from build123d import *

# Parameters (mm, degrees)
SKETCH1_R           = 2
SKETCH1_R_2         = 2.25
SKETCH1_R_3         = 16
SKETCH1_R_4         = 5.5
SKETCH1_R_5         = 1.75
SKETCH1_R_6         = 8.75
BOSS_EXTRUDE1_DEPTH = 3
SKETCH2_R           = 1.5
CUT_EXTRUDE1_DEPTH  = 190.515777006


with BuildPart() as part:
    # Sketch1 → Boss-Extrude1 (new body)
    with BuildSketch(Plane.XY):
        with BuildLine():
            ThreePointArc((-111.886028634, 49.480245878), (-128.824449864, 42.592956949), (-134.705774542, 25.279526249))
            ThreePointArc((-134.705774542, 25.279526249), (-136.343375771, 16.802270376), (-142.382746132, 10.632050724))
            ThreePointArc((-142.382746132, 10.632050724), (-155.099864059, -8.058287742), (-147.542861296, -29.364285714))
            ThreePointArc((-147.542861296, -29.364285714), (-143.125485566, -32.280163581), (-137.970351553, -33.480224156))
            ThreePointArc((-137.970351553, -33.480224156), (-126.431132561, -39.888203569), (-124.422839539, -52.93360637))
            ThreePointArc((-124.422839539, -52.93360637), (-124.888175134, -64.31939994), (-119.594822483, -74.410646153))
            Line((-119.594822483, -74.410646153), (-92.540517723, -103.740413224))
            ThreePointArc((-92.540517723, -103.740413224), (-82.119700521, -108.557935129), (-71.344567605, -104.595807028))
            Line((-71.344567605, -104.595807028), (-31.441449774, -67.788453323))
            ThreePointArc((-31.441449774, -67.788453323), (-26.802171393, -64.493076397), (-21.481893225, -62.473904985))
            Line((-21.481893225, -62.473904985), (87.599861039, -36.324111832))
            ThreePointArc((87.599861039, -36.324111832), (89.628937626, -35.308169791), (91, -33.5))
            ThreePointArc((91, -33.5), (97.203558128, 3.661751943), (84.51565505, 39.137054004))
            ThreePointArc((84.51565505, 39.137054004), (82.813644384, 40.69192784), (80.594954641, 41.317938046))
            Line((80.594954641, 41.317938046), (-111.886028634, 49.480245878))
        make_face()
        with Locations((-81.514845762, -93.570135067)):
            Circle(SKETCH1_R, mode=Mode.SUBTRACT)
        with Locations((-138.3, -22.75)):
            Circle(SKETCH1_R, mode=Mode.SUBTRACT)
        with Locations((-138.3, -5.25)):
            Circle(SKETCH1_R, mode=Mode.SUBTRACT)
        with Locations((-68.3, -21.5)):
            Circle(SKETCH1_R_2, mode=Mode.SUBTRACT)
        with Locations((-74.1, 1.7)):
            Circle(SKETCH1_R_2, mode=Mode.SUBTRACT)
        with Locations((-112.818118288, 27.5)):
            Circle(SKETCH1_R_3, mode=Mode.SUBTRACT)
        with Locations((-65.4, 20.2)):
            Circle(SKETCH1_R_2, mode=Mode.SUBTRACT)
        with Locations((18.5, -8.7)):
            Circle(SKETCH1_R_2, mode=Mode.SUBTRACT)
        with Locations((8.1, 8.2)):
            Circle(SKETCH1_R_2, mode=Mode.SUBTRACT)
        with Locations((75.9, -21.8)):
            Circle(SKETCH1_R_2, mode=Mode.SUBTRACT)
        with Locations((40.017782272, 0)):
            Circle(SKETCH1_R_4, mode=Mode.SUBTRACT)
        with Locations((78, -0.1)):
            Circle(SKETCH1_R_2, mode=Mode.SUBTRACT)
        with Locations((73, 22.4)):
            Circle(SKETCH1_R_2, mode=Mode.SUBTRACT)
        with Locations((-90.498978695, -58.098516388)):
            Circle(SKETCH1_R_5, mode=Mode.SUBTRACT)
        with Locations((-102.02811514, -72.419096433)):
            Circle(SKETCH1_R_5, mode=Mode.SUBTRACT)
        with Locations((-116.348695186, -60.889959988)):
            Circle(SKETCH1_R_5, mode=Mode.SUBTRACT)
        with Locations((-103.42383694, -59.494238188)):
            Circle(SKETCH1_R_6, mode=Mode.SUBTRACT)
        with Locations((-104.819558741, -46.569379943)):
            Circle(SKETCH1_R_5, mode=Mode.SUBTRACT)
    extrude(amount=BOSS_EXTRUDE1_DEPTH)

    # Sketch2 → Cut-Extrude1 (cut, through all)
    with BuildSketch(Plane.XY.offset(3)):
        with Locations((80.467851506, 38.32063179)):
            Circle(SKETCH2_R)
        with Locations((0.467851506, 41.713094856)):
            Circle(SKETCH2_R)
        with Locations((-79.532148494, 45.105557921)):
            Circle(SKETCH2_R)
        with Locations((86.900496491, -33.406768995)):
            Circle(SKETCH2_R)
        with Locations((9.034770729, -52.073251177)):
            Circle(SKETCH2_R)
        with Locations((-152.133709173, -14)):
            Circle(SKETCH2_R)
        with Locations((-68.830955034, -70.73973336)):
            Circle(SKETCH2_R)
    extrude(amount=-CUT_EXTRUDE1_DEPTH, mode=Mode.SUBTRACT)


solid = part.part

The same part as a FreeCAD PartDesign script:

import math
import FreeCAD as App
import Part
import Sketcher
Q = App.Units.Quantity

doc = App.newDocument("Part")
body = doc.addObject("PartDesign::Body", "Body")

# Sketch on XY plane
sketch1 = doc.addObject("Sketcher::SketchObject", "Sketch")
body.addObject(sketch1)
sketch1.AttachmentSupport = (doc.XY_Plane, [""])
sketch1.MapMode = "FlatFace"
sketch1.addGeometry([
    Part.ArcOfCircle(Part.Circle(App.Vector(-112.8, 27.5, 0), App.Vector(0, 0, 1), 22), math.radians(88), math.radians(186)),  # 0
    Part.ArcOfCircle(Part.Circle(App.Vector(-149.6, 23.8, 0), App.Vector(0, 0, 1), 15), math.radians(-61), math.radians(6)),  # 1
    Part.ArcOfCircle(Part.Circle(App.Vector(-130.3, -11.3, 0), App.Vector(0, 0, 1), 25), math.radians(119), math.radians(226)),  # 2
    Part.ArcOfCircle(Part.Circle(App.Vector(-137.2, -18.5, 0), App.Vector(0, 0, 1), 15), math.radians(-134), math.radians(-93)),  # 3
    Part.ArcOfCircle(Part.Circle(App.Vector(-138.7, -48.5, 0), App.Vector(0, 0, 1), 15), math.radians(-17), math.radians(87)),  # 4
    Part.ArcOfCircle(Part.Circle(App.Vector(-103.4, -59.5, 0), App.Vector(0, 0, 1), 22), math.radians(163), math.radians(223)),  # 5
    Part.LineSegment(App.Vector(-119.6, -74.4, 0), App.Vector(-92.5, -103.7, 0)),  # 6
    Part.ArcOfCircle(Part.Circle(App.Vector(-81.5, -93.6, 0), App.Vector(0, 0, 1), 15), math.radians(-137), math.radians(-47)),  # 7
    Part.LineSegment(App.Vector(-71.3, -104.6, 0), App.Vector(-31.4, -67.8, 0)),  # 8
    Part.ArcOfCircle(Part.Circle(App.Vector(-16.3, -84.2, 0), App.Vector(0, 0, 1), 22.4), math.radians(103), math.radians(133)),  # 9
    Part.LineSegment(App.Vector(-21.5, -62.5, 0), App.Vector(87.6, -36.3, 0)),  # 10
    Part.ArcOfCircle(Part.Circle(App.Vector(86.4, -31.5, 0), App.Vector(0, 0, 1), 5), math.radians(-77), math.radians(-24)),  # 11
    Part.ArcOfCircle(Part.Circle(App.Vector(22.7, -3, 0), App.Vector(0, 0, 1), 74.8), math.radians(-24), math.radians(34)),  # 12
    Part.ArcOfCircle(Part.Circle(App.Vector(80.4, 36.3, 0), App.Vector(0, 0, 1), 5), math.radians(34), math.radians(88)),  # 13
    Part.LineSegment(App.Vector(80.6, 41.3, 0), App.Vector(-111.9, 49.5, 0)),  # 14
    Part.Circle(App.Vector(-116.3, -60.9, 0), App.Vector(0, 0, 1), 1.8),  # 15
    Part.Circle(App.Vector(-102, -72.4, 0), App.Vector(0, 0, 1), 1.8),  # 16
    Part.Circle(App.Vector(-81.5, -93.6, 0), App.Vector(0, 0, 1), 2),  # 17
    Part.Circle(App.Vector(-103.4, -59.5, 0), App.Vector(0, 0, 1), 8.8),  # 18
    Part.Circle(App.Vector(-90.5, -58.1, 0), App.Vector(0, 0, 1), 1.8),  # 19
    Part.Circle(App.Vector(-104.8, -46.6, 0), App.Vector(0, 0, 1), 1.8),  # 20
    Part.Circle(App.Vector(-138.3, -22.8, 0), App.Vector(0, 0, 1), 2),  # 21
    Part.Circle(App.Vector(-138.3, -5.2, 0), App.Vector(0, 0, 1), 2),  # 22
    Part.Circle(App.Vector(-68.3, -21.5, 0), App.Vector(0, 0, 1), 2.2),  # 23
    Part.Circle(App.Vector(-74.1, 1.7, 0), App.Vector(0, 0, 1), 2.2),  # 24
    Part.Circle(App.Vector(-112.8, 27.5, 0), App.Vector(0, 0, 1), 16),  # 25
    Part.Circle(App.Vector(-65.4, 20.2, 0), App.Vector(0, 0, 1), 2.2),  # 26
    Part.Circle(App.Vector(18.5, -8.7, 0), App.Vector(0, 0, 1), 2.2),  # 27
    Part.Circle(App.Vector(8.1, 8.2, 0), App.Vector(0, 0, 1), 2.2),  # 28
    Part.Circle(App.Vector(75.9, -21.8, 0), App.Vector(0, 0, 1), 2.2),  # 29
    Part.Circle(App.Vector(40, 0, 0), App.Vector(0, 0, 1), 5.5),  # 30
    Part.Circle(App.Vector(78, -0.1, 0), App.Vector(0, 0, 1), 2.2),  # 31
    Part.Circle(App.Vector(73, 22.4, 0), App.Vector(0, 0, 1), 2.2),  # 32
], False)
sketch1.addConstraint([
    Sketcher.Constraint("Tangent", 0, 2, 1, 2),
    Sketcher.Constraint("Tangent", 1, 1, 2, 1),
    Sketcher.Constraint("Tangent", 2, 2, 3, 1),
    Sketcher.Constraint("Tangent", 3, 2, 4, 2),
    Sketcher.Constraint("Tangent", 4, 1, 5, 1),
    Sketcher.Constraint("Tangent", 5, 2, 6, 1),
    Sketcher.Constraint("Tangent", 6, 2, 7, 1),
    Sketcher.Constraint("Tangent", 7, 2, 8, 1),
    Sketcher.Constraint("Tangent", 8, 2, 9, 2),
    Sketcher.Constraint("Tangent", 9, 1, 10, 1),
    Sketcher.Constraint("Tangent", 10, 2, 11, 1),
    Sketcher.Constraint("Tangent", 11, 2, 12, 1),
    Sketcher.Constraint("Tangent", 12, 2, 13, 1),
    Sketcher.Constraint("Tangent", 13, 2, 14, 1),
    Sketcher.Constraint("Tangent", 14, 2, 0, 1),
    Sketcher.Constraint("Coincident", 17, 3, 7, 3),
    Sketcher.Constraint("Coincident", 18, 3, 5, 3),
    Sketcher.Constraint("Coincident", 25, 3, 0, 3),
    Sketcher.Constraint("Equal", 1, 3),
    Sketcher.Constraint("Equal", 3, 4),
    Sketcher.Constraint("Equal", 0, 5),
    Sketcher.Constraint("Equal", 4, 7),
    Sketcher.Constraint("Equal", 11, 13),
    Sketcher.Constraint("Equal", 15, 16),
    Sketcher.Constraint("Equal", 16, 19),
    Sketcher.Constraint("Equal", 19, 20),
    Sketcher.Constraint("Equal", 17, 21),
    Sketcher.Constraint("Equal", 21, 22),
    Sketcher.Constraint("Equal", 23, 24),
    Sketcher.Constraint("Equal", 24, 26),
    Sketcher.Constraint("Equal", 26, 27),
    Sketcher.Constraint("Equal", 27, 28),
    Sketcher.Constraint("Equal", 28, 29),
    Sketcher.Constraint("Equal", 29, 31),
    Sketcher.Constraint("Equal", 31, 32),
    Sketcher.Constraint("PointOnObject", 30, 3, -1),
    Sketcher.Constraint("Perpendicular", 6, 8),
    Sketcher.Constraint("Vertical", 21, 3, 22, 3),
    Sketcher.Constraint("Diameter", 17, Q("4 mm")),
    Sketcher.Constraint("Diameter", 25, Q("32 mm")),
    Sketcher.Constraint("Diameter", 30, Q("11 mm")),
    Sketcher.Constraint("Radius", 0, Q("22 mm")),
    Sketcher.Constraint("Radius", 1, Q("15 mm")),
    Sketcher.Constraint("Radius", 2, Q("25 mm")),
    Sketcher.Constraint("Radius", 11, Q("5 mm")),
    Sketcher.Constraint("Diameter", 15, Q("3.5 mm")),
    Sketcher.Constraint("Diameter", 18, Q("17.5 mm")),
    Sketcher.Constraint("Diameter", 23, Q("4.5 mm")),
    Sketcher.Constraint("DistanceX", -1, 1, 31, 3, Q("78 mm")),
    Sketcher.Constraint("DistanceX", -1, 1, 32, 3, Q("73 mm")),
    Sketcher.Constraint("DistanceX", -1, 1, 11, 2, Q("91 mm")),
    Sketcher.Constraint("DistanceY", 3, 3, 0, 3, Q("46 mm")),
    Sketcher.Constraint("DistanceY", 28, 3, 26, 3, Q("12 mm")),
    Sketcher.Constraint("DistanceY", 29, 3, 28, 3, Q("30 mm")),
    Sketcher.Constraint("DistanceY", -1, 1, 0, 3, Q("27.5 mm")),
    Sketcher.Constraint("DistanceX", 21, 3, -1, 1, Q("138.3 mm")),
    Sketcher.Constraint("DistanceX", 23, 3, -1, 1, Q("68.3 mm")),
    Sketcher.Constraint("DistanceY", 23, 3, -1, 1, Q("21.5 mm")),
    Sketcher.Constraint("DistanceX", 24, 3, -1, 1, Q("74.1 mm")),
    Sketcher.Constraint("DistanceY", -1, 1, 24, 3, Q("1.7 mm")),
    Sketcher.Constraint("DistanceX", 26, 3, -1, 1, Q("65.4 mm")),
    Sketcher.Constraint("DistanceY", -1, 1, 26, 3, Q("20.2 mm")),
    Sketcher.Constraint("DistanceX", -1, 1, 27, 3, Q("18.5 mm")),
    Sketcher.Constraint("DistanceY", 27, 3, -1, 1, Q("8.7 mm")),
    Sketcher.Constraint("DistanceX", -1, 1, 28, 3, Q("8.1 mm")),
    Sketcher.Constraint("DistanceX", -1, 1, 29, 3, Q("75.9 mm")),
    Sketcher.Constraint("DistanceY", 31, 3, -1, 1, Q("0.1 mm")),
    Sketcher.Constraint("DistanceY", -1, 1, 32, 3, Q("22.4 mm")),
    Sketcher.Constraint("DistanceY", 11, 2, -1, 1, Q("33.5 mm")),
    Sketcher.Constraint("DistanceY", 21, 3, 22, 3, Q("17.5 mm")),
    Sketcher.Constraint("DistanceY", 21, 3, -1, 1, Q("22.75 mm")),
    Sketcher.Constraint("Radius", 9, Q("22.386206 mm")),
    Sketcher.Constraint("Radius", 12, Q("74.841085 mm")),
    Sketcher.Constraint("DistanceX", 3, 3, 2, 3, Q("6.895 mm")),
    Sketcher.Constraint("DistanceX", 7, 3, 11, 3, Q("167.949099 mm")),
    Sketcher.Constraint("DistanceY", 11, 3, 13, 3, Q("67.784301 mm")),
    Sketcher.Constraint("DistanceX", 12, 3, 13, 3, Q("57.724201 mm")),
    Sketcher.Constraint("DistanceX", 1, 3, 0, 2, Q("14.923402 mm")),
    Sketcher.Constraint("DistanceX", 4, 3, 4, 1, Q("14.317502 mm")),
    Sketcher.Constraint("Distance", 10, Q("112.172371 mm")),
    Sketcher.Constraint("Distance", 14, Q("192.65397 mm")),
    Sketcher.Constraint("DistanceX", 4, 3, -1, 1, Q("138.740341 mm")),
    Sketcher.Constraint("DistanceY", 15, 3, -1, 1, Q("60.88996 mm")),
    Sketcher.Constraint("DistanceX", 19, 3, -1, 1, Q("90.498979 mm")),
    Sketcher.Constraint("DistanceX", 20, 3, -1, 1, Q("104.819559 mm")),
    Sketcher.Constraint("DistanceY", 20, 3, -1, 1, Q("46.56938 mm")),
    Sketcher.Constraint("DistanceX", 8, 2, -1, 1, Q("31.44145 mm")),
    Sketcher.Constraint("DistanceX", 15, 3, 5, 3, Q("12.924858 mm")),
    Sketcher.Constraint("DistanceX", 5, 3, 16, 3, Q("1.395722 mm")),
    Sketcher.Constraint("DistanceY", 16, 3, 5, 3, Q("12.924858 mm")),
    Sketcher.Constraint("DistanceY", 18, 3, 19, 3, Q("1.395722 mm")),
    Sketcher.Constraint("DistanceX", 30, 3, 10, 2, Q("47.582079 mm")),
])
pad1 = doc.addObject("PartDesign::Pad", "Pad")
body.addObject(pad1)
pad1.Profile = sketch1
pad1.Length = 3

# Sketch on XY plane
sketch2 = doc.addObject("Sketcher::SketchObject", "Sketch001")
body.addObject(sketch2)
sketch2.AttachmentSupport = (doc.XY_Plane, [""])
sketch2.MapMode = "FlatFace"
sketch2.AttachmentOffset = App.Placement(App.Vector(0, 0, 3), App.Rotation())
sketch2.addGeometry([
    Part.Circle(App.Vector(80.5, 38.3, 0), App.Vector(0, 0, 1), 1.5),  # 0
    Part.Circle(App.Vector(0.5, 41.7, 0), App.Vector(0, 0, 1), 1.5),  # 1
    Part.Circle(App.Vector(-79.5, 45.1, 0), App.Vector(0, 0, 1), 1.5),  # 2
    Part.Circle(App.Vector(86.9, -33.4, 0), App.Vector(0, 0, 1), 1.5),  # 3
    Part.Circle(App.Vector(9, -52.1, 0), App.Vector(0, 0, 1), 1.5),  # 4
    Part.Circle(App.Vector(-152.1, -14, 0), App.Vector(0, 0, 1), 1.5),  # 5
    Part.Circle(App.Vector(-68.8, -70.7, 0), App.Vector(0, 0, 1), 1.5),  # 6
], False)
sketch2.addConstraint([
    Sketcher.Constraint("Equal", 0, 1),
    Sketcher.Constraint("Equal", 1, 2),
    Sketcher.Constraint("Equal", 2, 3),
    Sketcher.Constraint("Equal", 3, 4),
    Sketcher.Constraint("Equal", 4, 5),
    Sketcher.Constraint("Equal", 5, 6),
    Sketcher.Constraint("Diameter", 0, Q("3 mm")),
    Sketcher.Constraint("DistanceY", 5, 3, -1, 1, Q("14 mm")),
    Sketcher.Constraint("DistanceX", 1, 3, 0, 3, Q("80 mm")),
    Sketcher.Constraint("DistanceX", 2, 3, 1, 3, Q("80 mm")),
    Sketcher.Constraint("DistanceY", 3, 3, 0, 3, Q("71.727401 mm")),
    Sketcher.Constraint("DistanceX", -1, 1, 0, 3, Q("80.467852 mm")),
    Sketcher.Constraint("DistanceY", -1, 1, 0, 3, Q("38.320632 mm")),
    Sketcher.Constraint("DistanceX", -1, 1, 4, 3, Q("9.034771 mm")),
    Sketcher.Constraint("DistanceY", 4, 3, -1, 1, Q("52.073251 mm")),
    Sketcher.Constraint("DistanceX", 5, 3, -1, 1, Q("152.133709 mm")),
    Sketcher.Constraint("DistanceY", 4, 3, 2, 3, Q("97.178809 mm")),
    Sketcher.Constraint("DistanceY", 6, 3, 2, 3, Q("115.845291 mm")),
    Sketcher.Constraint("DistanceY", 6, 3, 1, 3, Q("112.452828 mm")),
    Sketcher.Constraint("DistanceX", 6, 3, 3, 3, Q("155.731452 mm")),
    Sketcher.Constraint("DistanceX", -1, 1, 3, 3, Q("86.900496 mm")),
])
pocket1 = doc.addObject("PartDesign::Pocket", "Pocket")
body.addObject(pocket1)
pocket1.Profile = sketch2
pocket1.Type = "ThroughAll"

doc.recompute()
